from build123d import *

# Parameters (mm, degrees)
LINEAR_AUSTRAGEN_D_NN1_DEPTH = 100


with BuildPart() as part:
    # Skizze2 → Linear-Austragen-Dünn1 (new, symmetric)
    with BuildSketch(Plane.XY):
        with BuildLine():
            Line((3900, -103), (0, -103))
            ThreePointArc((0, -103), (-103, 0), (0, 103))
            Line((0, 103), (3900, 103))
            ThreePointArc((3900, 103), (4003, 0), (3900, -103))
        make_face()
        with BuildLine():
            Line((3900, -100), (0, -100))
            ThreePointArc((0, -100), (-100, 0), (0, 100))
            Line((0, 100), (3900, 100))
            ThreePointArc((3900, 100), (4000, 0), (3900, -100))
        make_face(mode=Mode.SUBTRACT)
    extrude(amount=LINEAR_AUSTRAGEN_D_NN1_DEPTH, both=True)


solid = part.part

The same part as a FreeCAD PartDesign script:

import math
import FreeCAD as App
import Part
import Sketcher
from FreeCAD import Vector

doc = App.newDocument("Part")
body = doc.addObject("PartDesign::Body", "Body")

sketch1 = body.newObject("Sketcher::SketchObject", "Sketch")
sketch1.AttachmentSupport = (doc.getObject("XY_Plane"), [""])
sketch1.MapMode = "FlatFace"
sketch1.addGeometry(Part.LineSegment(Vector(0, -103, 0), Vector(3900, -103, 0)), False)
sketch1.addGeometry(Part.ArcOfCircle(Part.Circle(Vector(3900, 0, 0), Vector(0, 0, 1), 103), math.radians(-90), math.radians(90)), False)
sketch1.addGeometry(Part.LineSegment(Vector(3900, 103, 0), Vector(0, 103, 0)), False)
sketch1.addGeometry(Part.ArcOfCircle(Part.Circle(Vector(0, 0, 0), Vector(0, 0, 1), 103), math.radians(90), math.radians(270)), False)
sketch1.addGeometry(Part.LineSegment(Vector(3900, -100, 0), Vector(0, -100, 0)), False)
sketch1.addGeometry(Part.ArcOfCircle(Part.Circle(Vector(0, 0, 0), Vector(0, 0, 1), 100), math.radians(90), math.radians(270)), False)
sketch1.addGeometry(Part.LineSegment(Vector(0, 100, 0), Vector(3900, 100, 0)), False)
sketch1.addGeometry(Part.ArcOfCircle(Part.Circle(Vector(3900, 0, 0), Vector(0, 0, 1), 100), math.radians(-90), math.radians(90)), False)
sketch1.addConstraint(Sketcher.Constraint("Tangent", 0, 2, 1, 1))
sketch1.addConstraint(Sketcher.Constraint("Tangent", 1, 2, 2, 1))
sketch1.addConstraint(Sketcher.Constraint("Tangent", 2, 2, 3, 1))
sketch1.addConstraint(Sketcher.Constraint("Tangent", 3, 2, 0, 1))
sketch1.addConstraint(Sketcher.Constraint("Tangent", 4, 2, 5, 2))
sketch1.addConstraint(Sketcher.Constraint("Tangent", 5, 1, 6, 1))
sketch1.addConstraint(Sketcher.Constraint("Tangent", 6, 2, 7, 2))
sketch1.addConstraint(Sketcher.Constraint("Tangent", 7, 1, 4, 1))
sketch1.addConstraint(Sketcher.Constraint("Horizontal", 0))
sketch1.addConstraint(Sketcher.Constraint("Horizontal", 2))
sketch1.addConstraint(Sketcher.Constraint("Horizontal", 4))
sketch1.addConstraint(Sketcher.Constraint("Horizontal", 6))
sketch1.addConstraint(Sketcher.Constraint("Coincident", 3, 3, -1, 1))
sketch1.addConstraint(Sketcher.Constraint("Coincident", 5, 3, -1, 1))
sketch1.addConstraint(Sketcher.Constraint("Vertical", 7, 3, 0, 2))
sketch1.addConstraint(Sketcher.Constraint("Radius", 1, 103.0))
sketch1.addConstraint(Sketcher.Constraint("Radius", 5, 100.0))
sketch1.addConstraint(Sketcher.Constraint("DistanceX", 0, 1, 0, 2, 3900.0))
pad1 = body.newObject("PartDesign::Pad", "Pad")
pad1.Profile = sketch1
pad1.Length = 200
pad1.Midplane = True

doc.recompute()
